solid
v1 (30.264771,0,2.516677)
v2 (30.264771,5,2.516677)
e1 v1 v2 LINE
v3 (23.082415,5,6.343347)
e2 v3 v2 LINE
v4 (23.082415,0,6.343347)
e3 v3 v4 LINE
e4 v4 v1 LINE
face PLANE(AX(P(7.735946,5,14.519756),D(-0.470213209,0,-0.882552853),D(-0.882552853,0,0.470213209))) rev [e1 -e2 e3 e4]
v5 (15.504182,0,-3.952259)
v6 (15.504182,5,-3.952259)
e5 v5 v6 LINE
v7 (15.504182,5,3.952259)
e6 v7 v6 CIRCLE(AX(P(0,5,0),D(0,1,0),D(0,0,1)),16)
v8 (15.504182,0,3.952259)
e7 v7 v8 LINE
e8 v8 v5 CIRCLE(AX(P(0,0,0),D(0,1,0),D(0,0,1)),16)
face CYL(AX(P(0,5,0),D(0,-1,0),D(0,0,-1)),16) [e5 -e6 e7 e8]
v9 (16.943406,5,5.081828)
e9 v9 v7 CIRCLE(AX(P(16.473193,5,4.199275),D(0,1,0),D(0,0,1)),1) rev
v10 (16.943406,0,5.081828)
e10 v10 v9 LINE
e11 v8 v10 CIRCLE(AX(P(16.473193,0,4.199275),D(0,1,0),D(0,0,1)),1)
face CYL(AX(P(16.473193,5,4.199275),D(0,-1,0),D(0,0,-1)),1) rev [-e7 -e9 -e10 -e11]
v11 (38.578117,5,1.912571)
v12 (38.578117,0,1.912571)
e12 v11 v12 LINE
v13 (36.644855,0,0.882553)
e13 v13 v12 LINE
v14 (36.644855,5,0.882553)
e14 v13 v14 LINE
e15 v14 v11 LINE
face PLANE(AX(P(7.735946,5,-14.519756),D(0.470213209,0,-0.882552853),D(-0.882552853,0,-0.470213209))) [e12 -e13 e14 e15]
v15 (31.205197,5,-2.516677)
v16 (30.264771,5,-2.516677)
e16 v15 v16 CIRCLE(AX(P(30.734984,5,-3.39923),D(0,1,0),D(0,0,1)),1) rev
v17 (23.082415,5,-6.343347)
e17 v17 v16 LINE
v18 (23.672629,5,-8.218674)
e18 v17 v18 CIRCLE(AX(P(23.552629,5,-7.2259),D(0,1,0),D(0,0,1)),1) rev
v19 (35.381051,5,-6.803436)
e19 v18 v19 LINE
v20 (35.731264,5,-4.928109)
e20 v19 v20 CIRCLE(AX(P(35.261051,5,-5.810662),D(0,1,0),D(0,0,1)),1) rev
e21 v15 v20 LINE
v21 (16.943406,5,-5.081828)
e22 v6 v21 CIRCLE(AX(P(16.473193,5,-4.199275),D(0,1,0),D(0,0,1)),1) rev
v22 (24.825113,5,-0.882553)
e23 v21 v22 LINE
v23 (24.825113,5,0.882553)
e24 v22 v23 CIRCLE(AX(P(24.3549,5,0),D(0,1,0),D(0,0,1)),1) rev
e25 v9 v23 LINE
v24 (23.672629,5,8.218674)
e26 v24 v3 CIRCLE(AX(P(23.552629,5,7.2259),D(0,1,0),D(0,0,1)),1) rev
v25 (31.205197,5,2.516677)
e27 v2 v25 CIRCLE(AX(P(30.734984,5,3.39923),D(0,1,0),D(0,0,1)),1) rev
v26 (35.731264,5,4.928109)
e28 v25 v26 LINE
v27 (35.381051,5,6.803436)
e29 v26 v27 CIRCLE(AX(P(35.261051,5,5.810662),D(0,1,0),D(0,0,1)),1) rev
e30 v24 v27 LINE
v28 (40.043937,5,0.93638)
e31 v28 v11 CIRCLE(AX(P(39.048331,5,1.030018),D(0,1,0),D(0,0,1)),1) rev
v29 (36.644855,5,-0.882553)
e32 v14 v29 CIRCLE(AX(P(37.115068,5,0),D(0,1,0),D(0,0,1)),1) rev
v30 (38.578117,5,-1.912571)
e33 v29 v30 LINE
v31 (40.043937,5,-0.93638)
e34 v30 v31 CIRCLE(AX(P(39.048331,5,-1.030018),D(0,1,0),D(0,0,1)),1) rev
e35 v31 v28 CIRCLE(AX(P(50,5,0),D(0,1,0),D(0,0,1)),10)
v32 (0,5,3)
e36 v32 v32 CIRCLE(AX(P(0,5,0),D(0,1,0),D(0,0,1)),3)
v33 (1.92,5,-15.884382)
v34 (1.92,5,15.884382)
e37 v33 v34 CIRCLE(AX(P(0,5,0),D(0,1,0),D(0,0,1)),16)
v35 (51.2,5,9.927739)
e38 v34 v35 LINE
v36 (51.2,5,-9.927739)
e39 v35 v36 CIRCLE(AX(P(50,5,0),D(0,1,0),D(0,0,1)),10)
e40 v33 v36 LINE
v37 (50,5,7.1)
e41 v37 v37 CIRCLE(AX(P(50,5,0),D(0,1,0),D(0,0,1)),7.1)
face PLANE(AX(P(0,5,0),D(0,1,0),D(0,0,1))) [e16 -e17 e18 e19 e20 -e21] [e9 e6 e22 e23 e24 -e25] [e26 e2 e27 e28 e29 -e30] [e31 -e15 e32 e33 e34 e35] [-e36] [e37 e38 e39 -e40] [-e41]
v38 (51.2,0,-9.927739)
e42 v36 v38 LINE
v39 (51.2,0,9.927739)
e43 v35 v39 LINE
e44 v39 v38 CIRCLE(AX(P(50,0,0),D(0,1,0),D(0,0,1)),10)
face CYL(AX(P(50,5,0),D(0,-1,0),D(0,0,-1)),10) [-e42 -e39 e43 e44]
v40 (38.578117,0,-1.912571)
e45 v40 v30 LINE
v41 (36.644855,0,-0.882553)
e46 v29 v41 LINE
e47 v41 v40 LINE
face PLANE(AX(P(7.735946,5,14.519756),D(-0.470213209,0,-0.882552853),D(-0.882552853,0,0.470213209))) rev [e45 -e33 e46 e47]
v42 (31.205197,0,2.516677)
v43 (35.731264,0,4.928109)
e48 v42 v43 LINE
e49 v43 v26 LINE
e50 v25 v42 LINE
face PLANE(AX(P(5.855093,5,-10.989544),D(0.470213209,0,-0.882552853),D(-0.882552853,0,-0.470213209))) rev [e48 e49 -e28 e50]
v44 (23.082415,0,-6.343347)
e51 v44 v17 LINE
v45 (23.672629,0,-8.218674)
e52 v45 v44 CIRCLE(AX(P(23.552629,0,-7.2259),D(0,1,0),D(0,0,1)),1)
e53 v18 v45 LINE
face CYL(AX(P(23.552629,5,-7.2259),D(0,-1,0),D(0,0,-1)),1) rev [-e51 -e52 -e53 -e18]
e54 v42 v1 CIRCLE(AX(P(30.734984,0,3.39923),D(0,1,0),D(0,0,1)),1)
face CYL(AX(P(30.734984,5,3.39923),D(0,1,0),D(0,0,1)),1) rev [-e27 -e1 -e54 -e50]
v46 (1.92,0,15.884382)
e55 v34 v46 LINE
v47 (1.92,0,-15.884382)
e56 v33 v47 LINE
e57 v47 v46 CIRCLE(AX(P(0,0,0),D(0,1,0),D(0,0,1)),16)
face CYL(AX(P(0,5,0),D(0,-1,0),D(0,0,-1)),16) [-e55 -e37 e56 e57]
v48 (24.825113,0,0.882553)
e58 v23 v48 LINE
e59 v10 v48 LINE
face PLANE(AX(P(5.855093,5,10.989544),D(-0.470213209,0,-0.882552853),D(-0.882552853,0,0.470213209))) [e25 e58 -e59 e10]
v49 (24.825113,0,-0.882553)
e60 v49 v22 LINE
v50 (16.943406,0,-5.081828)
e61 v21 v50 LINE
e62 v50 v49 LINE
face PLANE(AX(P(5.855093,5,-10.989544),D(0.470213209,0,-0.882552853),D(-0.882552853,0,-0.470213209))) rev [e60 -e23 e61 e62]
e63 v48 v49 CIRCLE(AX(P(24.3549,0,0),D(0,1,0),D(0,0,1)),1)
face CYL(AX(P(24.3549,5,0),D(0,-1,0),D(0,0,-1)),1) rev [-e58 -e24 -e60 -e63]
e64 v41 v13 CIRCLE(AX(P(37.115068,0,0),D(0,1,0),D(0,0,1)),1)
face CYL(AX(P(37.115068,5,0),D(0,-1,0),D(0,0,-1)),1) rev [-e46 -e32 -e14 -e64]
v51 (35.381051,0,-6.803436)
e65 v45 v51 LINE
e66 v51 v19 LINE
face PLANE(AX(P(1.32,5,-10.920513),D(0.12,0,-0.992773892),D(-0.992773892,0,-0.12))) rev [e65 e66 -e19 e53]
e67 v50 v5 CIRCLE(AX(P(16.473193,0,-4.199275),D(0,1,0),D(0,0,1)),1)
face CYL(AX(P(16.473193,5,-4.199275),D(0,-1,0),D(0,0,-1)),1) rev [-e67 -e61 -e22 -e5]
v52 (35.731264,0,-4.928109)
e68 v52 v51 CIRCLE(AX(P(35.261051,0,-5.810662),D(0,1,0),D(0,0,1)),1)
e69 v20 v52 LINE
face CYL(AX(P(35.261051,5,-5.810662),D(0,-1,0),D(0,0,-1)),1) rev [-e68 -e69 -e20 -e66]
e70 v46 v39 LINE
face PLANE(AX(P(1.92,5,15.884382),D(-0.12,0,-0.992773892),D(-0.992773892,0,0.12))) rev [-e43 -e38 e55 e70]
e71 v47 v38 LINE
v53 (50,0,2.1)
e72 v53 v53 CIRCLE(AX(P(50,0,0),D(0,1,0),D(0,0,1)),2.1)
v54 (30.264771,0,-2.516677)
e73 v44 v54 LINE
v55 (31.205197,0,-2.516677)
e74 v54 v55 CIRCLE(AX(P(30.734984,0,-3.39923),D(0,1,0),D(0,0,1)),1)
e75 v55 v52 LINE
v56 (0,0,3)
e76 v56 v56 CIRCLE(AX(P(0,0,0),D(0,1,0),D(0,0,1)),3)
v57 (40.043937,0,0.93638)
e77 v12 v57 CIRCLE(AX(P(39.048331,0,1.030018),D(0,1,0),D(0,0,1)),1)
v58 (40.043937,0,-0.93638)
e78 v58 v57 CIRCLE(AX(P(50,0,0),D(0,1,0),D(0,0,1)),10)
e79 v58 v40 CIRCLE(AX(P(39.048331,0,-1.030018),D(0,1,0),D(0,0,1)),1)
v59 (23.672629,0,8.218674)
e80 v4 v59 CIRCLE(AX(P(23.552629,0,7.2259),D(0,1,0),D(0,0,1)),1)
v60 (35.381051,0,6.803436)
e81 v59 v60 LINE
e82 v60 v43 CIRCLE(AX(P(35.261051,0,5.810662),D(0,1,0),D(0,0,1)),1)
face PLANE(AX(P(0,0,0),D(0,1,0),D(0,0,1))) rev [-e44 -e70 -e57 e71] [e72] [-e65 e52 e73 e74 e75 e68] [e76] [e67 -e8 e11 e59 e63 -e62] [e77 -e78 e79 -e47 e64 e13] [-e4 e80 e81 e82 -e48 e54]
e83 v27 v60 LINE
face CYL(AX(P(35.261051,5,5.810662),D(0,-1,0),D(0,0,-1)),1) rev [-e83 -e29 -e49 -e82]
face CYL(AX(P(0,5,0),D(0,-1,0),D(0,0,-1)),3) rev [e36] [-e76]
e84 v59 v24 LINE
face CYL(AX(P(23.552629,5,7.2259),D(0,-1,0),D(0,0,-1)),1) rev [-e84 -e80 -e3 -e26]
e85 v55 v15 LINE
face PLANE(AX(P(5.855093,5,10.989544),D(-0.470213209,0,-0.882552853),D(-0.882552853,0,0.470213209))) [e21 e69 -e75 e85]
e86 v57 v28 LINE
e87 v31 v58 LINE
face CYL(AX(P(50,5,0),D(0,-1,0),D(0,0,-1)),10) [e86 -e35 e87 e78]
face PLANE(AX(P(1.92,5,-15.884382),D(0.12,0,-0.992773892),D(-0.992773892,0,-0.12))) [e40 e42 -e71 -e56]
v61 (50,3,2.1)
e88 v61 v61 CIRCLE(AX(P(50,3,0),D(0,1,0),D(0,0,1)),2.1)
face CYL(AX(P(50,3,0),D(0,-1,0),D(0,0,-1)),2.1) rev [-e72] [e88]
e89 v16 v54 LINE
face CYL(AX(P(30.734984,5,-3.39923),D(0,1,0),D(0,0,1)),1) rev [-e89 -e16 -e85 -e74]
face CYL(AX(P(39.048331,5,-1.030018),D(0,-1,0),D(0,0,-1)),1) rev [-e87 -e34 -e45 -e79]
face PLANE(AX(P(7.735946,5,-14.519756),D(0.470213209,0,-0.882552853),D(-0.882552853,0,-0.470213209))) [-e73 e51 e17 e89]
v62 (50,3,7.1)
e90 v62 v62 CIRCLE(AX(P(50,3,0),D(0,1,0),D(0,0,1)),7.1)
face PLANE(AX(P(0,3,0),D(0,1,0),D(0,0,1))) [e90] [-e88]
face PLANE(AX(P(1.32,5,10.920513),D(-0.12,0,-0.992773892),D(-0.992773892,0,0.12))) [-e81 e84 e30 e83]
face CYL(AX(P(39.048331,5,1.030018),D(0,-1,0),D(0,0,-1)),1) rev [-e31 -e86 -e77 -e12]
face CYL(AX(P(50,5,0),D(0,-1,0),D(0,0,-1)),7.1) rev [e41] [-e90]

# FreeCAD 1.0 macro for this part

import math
import FreeCAD as App
import Part
import Sketcher
Q = App.Units.Quantity


def edges_at(feature, points):
    """Names of the edges that pass closest to the given points."""
    edges = feature.Shape.Edges
    near = lambda p: min(range(len(edges)), key=lambda i: edges[i].distToShape(Part.Vertex(*p))[0])
    return sorted({f"Edge{near(p) + 1}" for p in points})

doc = App.newDocument("Part")
body = doc.addObject("PartDesign::Body", "Body")

# Sketch on XZ plane
sketch1 = body.newObject("Sketcher::SketchObject", "Sketch")
sketch1.AttachmentSupport = (doc.getObject("XZ_Plane"), [""])
sketch1.MapMode = "FlatFace"
sketch1.addGeometry(Part.LineSegment(App.Vector(1.9, 15.9, 0), App.Vector(51.2, 9.9, 0)), False)
sketch1.addGeometry(Part.ArcOfCircle(Part.Circle(App.Vector(50, 0, 0), App.Vector(0, 0, 1), 10), math.radians(-83), math.radians(83)), False)
sketch1.addGeometry(Part.LineSegment(App.Vector(51.2, -9.9, 0), App.Vector(1.9, -15.9, 0)), False)
sketch1.addGeometry(Part.ArcOfCircle(Part.Circle(App.Vector(0, 0, 0), App.Vector(0, 0, 1), 16), math.radians(83), math.radians(277)), False)
sketch1.addGeometry(Part.ArcOfCircle(Part.Circle(App.Vector(0, 0, 0), App.Vector(0, 0, 1), 16), math.radians(-23), math.radians(23)), False)
sketch1.addGeometry(Part.LineSegment(App.Vector(14.7, -6.3, 0), App.Vector(26.5, 0, 0)), False)
sketch1.addGeometry(Part.LineSegment(App.Vector(26.5, 0, 0), App.Vector(14.7, 6.3, 0)), False)
sketch1.addGeometry(Part.LineSegment(App.Vector(38.5, 6.4, 0), App.Vector(18.4, 8.9, 0)), False)
sketch1.addGeometry(Part.LineSegment(App.Vector(18.4, 8.9, 0), App.Vector(30.7, 2.3, 0)), False)
sketch1.addGeometry(Part.LineSegment(App.Vector(30.7, 2.3, 0), App.Vector(38.5, 6.4, 0)), False)
sketch1.addGeometry(Part.Circle(App.Vector(50, 0, 0), App.Vector(0, 0, 1), 7.1), False)
sketch1.addGeometry(Part.Circle(App.Vector(0, 0, 0), App.Vector(0, 0, 1), 3), False)
sketch1.addGeometry(Part.LineSegment(App.Vector(40.4, 2.9, 0), App.Vector(35, 0, 0)), False)
sketch1.addGeometry(Part.LineSegment(App.Vector(35, 0, 0), App.Vector(40.4, -2.9, 0)), False)
sketch1.addGeometry(Part.ArcOfCircle(Part.Circle(App.Vector(50, 0, 0), App.Vector(0, 0, 1), 10), math.radians(163), math.radians(197)), False)
sketch1.addGeometry(Part.LineSegment(App.Vector(30.7, -2.3, 0), App.Vector(18.4, -8.9, 0)), False)
sketch1.addGeometry(Part.LineSegment(App.Vector(18.4, -8.9, 0), App.Vector(38.5, -6.4, 0)), False)
sketch1.addGeometry(Part.LineSegment(App.Vector(38.5, -6.4, 0), App.Vector(30.7, -2.3, 0)), False)
sketch1.addConstraint(Sketcher.Constraint("Tangent", 0, 2, 1, 2))
sketch1.addConstraint(Sketcher.Constraint("Tangent", 1, 1, 2, 1))
sketch1.addConstraint(Sketcher.Constraint("Tangent", 2, 2, 3, 2))
sketch1.addConstraint(Sketcher.Constraint("Tangent", 3, 1, 0, 1))
sketch1.addConstraint(Sketcher.Constraint("Coincident", 4, 1, 5, 1))
sketch1.addConstraint(Sketcher.Constraint("Coincident", 5, 2, 6, 1))
sketch1.addConstraint(Sketcher.Constraint("Coincident", 6, 2, 4, 2))
sketch1.addConstraint(Sketcher.Constraint("Coincident", 7, 2, 8, 1))
sketch1.addConstraint(Sketcher.Constraint("Coincident", 8, 2, 9, 1))
sketch1.addConstraint(Sketcher.Constraint("Coincident", 9, 2, 7, 1))
sketch1.addConstraint(Sketcher.Constraint("Coincident", 12, 2, 13, 1))
sketch1.addConstraint(Sketcher.Constraint("Coincident", 13, 2, 14, 2))
sketch1.addConstraint(Sketcher.Constraint("Coincident", 14, 1, 12, 1))
sketch1.addConstraint(Sketcher.Constraint("Coincident", 15, 2, 16, 1))
sketch1.addConstraint(Sketcher.Constraint("Coincident", 16, 2, 17, 1))
sketch1.addConstraint(Sketcher.Constraint("Coincident", 17, 2, 15, 1))
sketch1.addConstraint(Sketcher.Constraint("Coincident", 3, 3, -1, 1))
sketch1.addConstraint(Sketcher.Constraint("Coincident", 4, 3, -1, 1))
sketch1.addConstraint(Sketcher.Constraint("Coincident", 11, 3, -1, 1))
sketch1.addConstraint(Sketcher.Constraint("Coincident", 10, 3, 1, 3))
sketch1.addConstraint(Sketcher.Constraint("Coincident", 14, 3, 1, 3))
sketch1.addConstraint(Sketcher.Constraint("Equal", 3, 4))
sketch1.addConstraint(Sketcher.Constraint("Equal", 1, 14))
sketch1.addConstraint(Sketcher.Constraint("Symmetric", 13, 2, 14, 1, -1))
sketch1.addConstraint(Sketcher.Constraint("Symmetric", 7, 2, 15, 2, -1))
sketch1.addConstraint(Sketcher.Constraint("Symmetric", 9, 2, 16, 2, -1))
sketch1.addConstraint(Sketcher.Constraint("Symmetric", 8, 2, 17, 2, -1))
sketch1.addConstraint(Sketcher.Constraint("PointOnObject", 5, 2, -1))
sketch1.addConstraint(Sketcher.Constraint("PointOnObject", 12, 2, -1))
sketch1.addConstraint(Sketcher.Constraint("Parallel", 0, 7))
sketch1.addConstraint(Sketcher.Constraint("Parallel", 6, 8))
sketch1.addConstraint(Sketcher.Constraint("Parallel", 5, 9))
sketch1.addConstraint(Sketcher.Constraint("Parallel", 9, 12))
sketch1.addConstraint(Sketcher.Constraint("Parallel", 8, 13))
sketch1.addConstraint(Sketcher.Constraint("Diameter", 11, Q("6 mm")))
sketch1.addConstraint(Sketcher.Constraint("Radius", 1, Q("10 mm")))
sketch1.addConstraint(Sketcher.Constraint("Radius", 3, Q("16 mm")))
sketch1.addConstraint(Sketcher.Constraint("Diameter", 10, Q("14.2 mm")))
sketch1.addConstraint(Sketcher.Constraint("DistanceX", -1, 1, 1, 3, Q("50 mm")))
sketch1.addConstraint(Sketcher.Constraint("DistanceY", 8, 2, 9, 2, Q("4.155998 mm")))
sketch1.addConstraint(Sketcher.Constraint("DistanceY", 2, 2, 4, 1, Q("9.619201 mm")))
sketch1.addConstraint(Sketcher.Constraint("DistanceY", 8, 2, 7, 2, Q("6.595098 mm")))
sketch1.addConstraint(Sketcher.Constraint("DistanceX", -1, 1, 7, 2, Q("18.356509 mm")))
sketch1.addConstraint(Sketcher.Constraint("DistanceY", -1, 1, 7, 2, Q("8.861251 mm")))
sketch1.addConstraint(Sketcher.Constraint("DistanceX", 8, 2, 12, 2, Q("4.25339 mm")))
pad1 = body.newObject("PartDesign::Pad", "Pad")
pad1.Profile = sketch1
pad1.Length = 5
pad1.Reversed = True

# Sketch on XZ plane
sketch2 = body.newObject("Sketcher::SketchObject", "Sketch001")
sketch2.AttachmentSupport = (doc.getObject("XZ_Plane"), [""])
sketch2.MapMode = "FlatFace"
sketch2.addGeometry(Part.Circle(App.Vector(50, 0, 0), App.Vector(0, 0, 1), 7.1), False)
sketch2.addGeometry(Part.Circle(App.Vector(50, 0, 0), App.Vector(0, 0, 1), 2.1), False)
sketch2.addConstraint(Sketcher.Constraint("Coincident", 1, 3, 0, 3))
sketch2.addConstraint(Sketcher.Constraint("PointOnObject", 0, 3, -1))
sketch2.addConstraint(Sketcher.Constraint("Diameter", 0, Q("14.2 mm")))
sketch2.addConstraint(Sketcher.Constraint("Diameter", 1, Q("4.2 mm")))
sketch2.addConstraint(Sketcher.Constraint("DistanceX", -1, 1, 0, 3, Q("50 mm")))
pad2 = body.newObject("PartDesign::Pad", "Pad001")
pad2.Profile = sketch2
pad2.Length = 3
pad2.Reversed = True
doc.recompute()

fillet = body.newObject("PartDesign::Fillet", "Fillet")
fillet.Base = (pad2, edges_at(pad2, [(34.988, 2.5, 0), (40.429, 2.5, 2.899), (40.429, 2.5, -2.899)]))
fillet.Radius = 1
doc.recompute()

fillet2 = body.newObject("PartDesign::Fillet", "Fillet001")
fillet2.Base = (fillet, edges_at(fillet, [(18.357, 2.5, 8.861), (38.535, 2.5, 6.422), (30.735, 2.5, 2.266)]))
fillet2.Radius = 1
doc.recompute()

fillet3 = body.newObject("PartDesign::Fillet", "Fillet002")
fillet3.Base = (fillet2, edges_at(fillet2, [(38.535, 2.5, -6.422), (18.357, 2.5, -8.861), (30.735, 2.5, -2.266)]))
fillet3.Radius = 1
doc.recompute()

fillet4 = body.newObject("PartDesign::Fillet", "Fillet003")
fillet4.Base = (fillet3, edges_at(fillet3, [(26.482, 2.5, 0), (14.722, 2.5, -6.265), (14.722, 2.5, 6.265)]))
fillet4.Radius = 1

doc.recompute()
